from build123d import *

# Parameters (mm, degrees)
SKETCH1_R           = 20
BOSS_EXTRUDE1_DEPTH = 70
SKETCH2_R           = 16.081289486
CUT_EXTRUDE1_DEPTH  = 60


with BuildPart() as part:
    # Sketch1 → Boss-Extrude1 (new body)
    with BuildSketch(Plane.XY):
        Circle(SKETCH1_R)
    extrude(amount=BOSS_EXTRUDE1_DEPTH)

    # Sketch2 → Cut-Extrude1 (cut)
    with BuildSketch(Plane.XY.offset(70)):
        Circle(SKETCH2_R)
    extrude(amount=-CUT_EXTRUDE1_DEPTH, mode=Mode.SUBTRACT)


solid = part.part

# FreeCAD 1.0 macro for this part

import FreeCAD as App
import Part
import Sketcher
from FreeCAD import Vector
Q = App.Units.Quantity

doc = App.newDocument("Part")
body = doc.addObject("PartDesign::Body", "Body")

# Sketch on XY plane
sketch1 = doc.addObject("Sketcher::SketchObject", "Sketch")
body.addObject(sketch1)
sketch1.AttachmentSupport = (doc.XY_Plane, [""])
sketch1.MapMode = "FlatFace"
sketch1.addGeometry(Part.Circle(Vector(0, 0, 0), Vector(0, 0, 1), 20), False)
sketch1.addConstraint([
    Sketcher.Constraint("Coincident", 0, 3, -1, 1),
    Sketcher.Constraint("Diameter", 0, Q("40 mm")),
])
pad1 = doc.addObject("PartDesign::Pad", "Pad")
body.addObject(pad1)
pad1.Profile = sketch1
pad1.Length = 70

# Sketch on XY plane
sketch2 = doc.addObject("Sketcher::SketchObject", "Sketch001")
body.addObject(sketch2)
sketch2.AttachmentSupport = (doc.XY_Plane, [""])
sketch2.MapMode = "FlatFace"
sketch2.AttachmentOffset = App.Placement(Vector(0, 0, 70), App.Rotation())
sketch2.addGeometry(Part.Circle(Vector(0, 0, 0), Vector(0, 0, 1), 16), False)
sketch2.addConstraint([
    Sketcher.Constraint("Coincident", 0, 3, -1, 1),
    Sketcher.Constraint("Diameter", 0, Q("32.162579 mm")),
])
pocket1 = doc.addObject("PartDesign::Pocket", "Pocket")
body.addObject(pocket1)
pocket1.Profile = sketch2
pocket1.Length = 60

doc.recompute()
